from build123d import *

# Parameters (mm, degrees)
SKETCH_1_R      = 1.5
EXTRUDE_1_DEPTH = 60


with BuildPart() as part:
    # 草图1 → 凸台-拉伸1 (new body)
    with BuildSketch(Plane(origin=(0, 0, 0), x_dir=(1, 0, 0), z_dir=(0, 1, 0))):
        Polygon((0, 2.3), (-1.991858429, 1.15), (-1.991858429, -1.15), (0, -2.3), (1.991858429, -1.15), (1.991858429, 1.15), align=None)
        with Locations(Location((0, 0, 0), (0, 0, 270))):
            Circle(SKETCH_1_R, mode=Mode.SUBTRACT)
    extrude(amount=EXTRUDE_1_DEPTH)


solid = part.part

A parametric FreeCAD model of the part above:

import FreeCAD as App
import Part
import Sketcher
from FreeCAD import Vector
Q = App.Units.Quantity


def add_polygon(sketch, points):
    """Adds a closed chain of lines whose ends are joined by coincident constraints."""
    first, n = sketch.GeometryCount, len(points)
    for a, b in zip(points, points[1:] + points[:1]):
        sketch.addGeometry(Part.LineSegment(App.Vector(*a, 0), App.Vector(*b, 0)), False)
    for i in range(n):
        sketch.addConstraint(Sketcher.Constraint("Coincident", first + i, 2, first + (i + 1) % n, 1))

doc = App.newDocument("Part")
params = doc.addObject("Spreadsheet::Sheet", "Params")
for row, (alias, value) in enumerate([
    ("sketch1_diameter", "3 mm"),
    ("sketch1_height", "2.3 mm"),
    ("sketch1_length", "2.3 mm"),
    ("pad1_length", "60 mm"),
], start=1):
    params.set(f"A{row}", alias)
    params.set(f"B{row}", "=" + value)
    params.setAlias(f"B{row}", alias)

body = doc.addObject("PartDesign::Body", "Body")

# Sketch on XZ plane
sketch1 = doc.addObject("Sketcher::SketchObject", "Sketch")
body.addObject(sketch1)
sketch1.AttachmentSupport = (doc.XZ_Plane, [""])
sketch1.MapMode = "FlatFace"
add_polygon(sketch1, [(0, -2.3), (-2, -1.1), (-2, 1.1), (0, 2.3), (2, 1.1), (2, -1.1)])  # lines 0-5
sketch1.addGeometry(Part.Circle(Vector(0, 0, 0), Vector(0, 0, 1), 1.5), False)  # 6
sketch1.addConstraint(Sketcher.Constraint("Vertical", 1))
sketch1.addConstraint(Sketcher.Constraint("Vertical", 4))
sketch1.addConstraint(Sketcher.Constraint("Coincident", 6, 3, -1, 1))
sketch1.addConstraint(Sketcher.Constraint("Symmetric", 0, 2, 3, 2, -1, 1))
sketch1.addConstraint(Sketcher.Constraint("Symmetric", 2, 2, 5, 2, -1, 1))
sketch1.addConstraint(Sketcher.Constraint("PointOnObject", 2, 2, -2))
sketch1.addConstraint(Sketcher.Constraint("Parallel", 2, 5))
sketch1.addConstraint(Sketcher.Constraint("Horizontal", 1, 2, 3, 2))
sketch1.addConstraint(Sketcher.Constraint("Diameter", 6, Q("3 mm")))
sketch1.addConstraint(Sketcher.Constraint("Angle", 0, Q("150 deg")))
sketch1.addConstraint(Sketcher.Constraint("DistanceY", 1, 1, 1, 2, Q("2.3 mm")))
sketch1.addConstraint(Sketcher.Constraint("Distance", 0, Q("2.3 mm")))
sketch1.setExpression("Constraints[14]", "Params.sketch1_diameter")
sketch1.setExpression("Constraints[16]", "Params.sketch1_height")
sketch1.setExpression("Constraints[17]", "Params.sketch1_length")
pad1 = doc.addObject("PartDesign::Pad", "Pad")
body.addObject(pad1)
pad1.Profile = sketch1
pad1.setExpression("Length", "Params.pad1_length")
pad1.Reversed = True

doc.recompute()
